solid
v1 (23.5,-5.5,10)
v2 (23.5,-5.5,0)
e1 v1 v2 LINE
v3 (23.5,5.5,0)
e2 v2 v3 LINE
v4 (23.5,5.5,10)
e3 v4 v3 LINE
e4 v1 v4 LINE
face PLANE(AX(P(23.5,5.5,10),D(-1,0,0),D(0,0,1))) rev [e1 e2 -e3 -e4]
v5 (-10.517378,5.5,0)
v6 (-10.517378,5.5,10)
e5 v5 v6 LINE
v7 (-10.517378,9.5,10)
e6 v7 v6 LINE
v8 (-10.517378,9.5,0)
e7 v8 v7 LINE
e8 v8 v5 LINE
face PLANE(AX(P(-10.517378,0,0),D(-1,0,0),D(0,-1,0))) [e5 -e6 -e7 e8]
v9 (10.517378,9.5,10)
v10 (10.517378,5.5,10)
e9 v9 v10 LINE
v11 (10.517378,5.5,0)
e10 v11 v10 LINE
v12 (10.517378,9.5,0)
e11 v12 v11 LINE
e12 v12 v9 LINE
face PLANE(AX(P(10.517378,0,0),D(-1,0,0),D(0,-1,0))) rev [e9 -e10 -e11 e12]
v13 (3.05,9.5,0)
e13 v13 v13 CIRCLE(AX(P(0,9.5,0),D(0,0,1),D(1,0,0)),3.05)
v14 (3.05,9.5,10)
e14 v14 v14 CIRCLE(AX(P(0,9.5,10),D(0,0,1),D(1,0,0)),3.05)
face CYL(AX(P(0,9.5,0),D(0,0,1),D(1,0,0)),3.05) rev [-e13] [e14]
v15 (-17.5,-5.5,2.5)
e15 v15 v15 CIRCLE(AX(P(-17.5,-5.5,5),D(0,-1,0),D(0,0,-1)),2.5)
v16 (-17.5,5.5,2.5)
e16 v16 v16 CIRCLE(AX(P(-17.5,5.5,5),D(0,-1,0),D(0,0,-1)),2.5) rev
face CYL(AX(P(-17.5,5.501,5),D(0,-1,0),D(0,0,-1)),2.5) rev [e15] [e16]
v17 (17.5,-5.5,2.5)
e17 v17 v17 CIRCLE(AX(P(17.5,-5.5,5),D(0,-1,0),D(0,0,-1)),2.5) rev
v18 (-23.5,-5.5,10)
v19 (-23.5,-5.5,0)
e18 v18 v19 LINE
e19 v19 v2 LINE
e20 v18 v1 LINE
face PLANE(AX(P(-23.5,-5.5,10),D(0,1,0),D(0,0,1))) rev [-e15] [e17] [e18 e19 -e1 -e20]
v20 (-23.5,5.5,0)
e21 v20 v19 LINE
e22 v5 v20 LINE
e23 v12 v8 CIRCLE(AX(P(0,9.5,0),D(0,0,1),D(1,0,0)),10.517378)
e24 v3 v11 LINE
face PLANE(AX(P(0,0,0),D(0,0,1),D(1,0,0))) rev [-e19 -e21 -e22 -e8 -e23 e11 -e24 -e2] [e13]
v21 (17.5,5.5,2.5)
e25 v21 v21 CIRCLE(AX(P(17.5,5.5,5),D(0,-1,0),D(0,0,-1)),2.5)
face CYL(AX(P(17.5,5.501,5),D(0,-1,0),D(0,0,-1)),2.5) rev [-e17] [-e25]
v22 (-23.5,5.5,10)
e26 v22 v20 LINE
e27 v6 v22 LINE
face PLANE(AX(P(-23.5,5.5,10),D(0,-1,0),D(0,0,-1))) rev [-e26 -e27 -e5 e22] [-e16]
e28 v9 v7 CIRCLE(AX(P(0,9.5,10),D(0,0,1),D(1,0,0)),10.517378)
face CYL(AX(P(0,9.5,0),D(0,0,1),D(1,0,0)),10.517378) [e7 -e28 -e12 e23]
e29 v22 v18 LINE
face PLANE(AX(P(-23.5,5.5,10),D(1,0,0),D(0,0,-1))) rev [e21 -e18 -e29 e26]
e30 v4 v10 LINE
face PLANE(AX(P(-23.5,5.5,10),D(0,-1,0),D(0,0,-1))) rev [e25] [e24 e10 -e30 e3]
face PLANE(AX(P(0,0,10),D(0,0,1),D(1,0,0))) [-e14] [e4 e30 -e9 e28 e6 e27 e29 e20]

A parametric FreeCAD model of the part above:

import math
import FreeCAD as App
import Part
import Sketcher
from FreeCAD import Vector
Q = App.Units.Quantity


def add_polygon(sketch, points):
    """Adds a closed chain of lines whose ends are joined by coincident constraints."""
    first, n = sketch.GeometryCount, len(points)
    for a, b in zip(points, points[1:] + points[:1]):
        sketch.addGeometry(Part.LineSegment(App.Vector(*a, 0), App.Vector(*b, 0)), False)
    for i in range(n):
        sketch.addConstraint(Sketcher.Constraint("Coincident", first + i, 2, first + (i + 1) % n, 1))

doc = App.newDocument("Part")
body = doc.addObject("PartDesign::Body", "Body")

sketch1 = doc.addObject("Sketcher::SketchObject", "Sketch")
body.addObject(sketch1)
sketch1.AttachmentSupport = (doc.XY_Plane, [""])
sketch1.MapMode = "FlatFace"
add_polygon(sketch1, [(-24, 6), (-24, -6), (24, -6), (24, 6)])
sketch1.addConstraint([
    Sketcher.Constraint("Vertical", 0),
    Sketcher.Constraint("Horizontal", 1),
    Sketcher.Constraint("Vertical", 2),
    Sketcher.Constraint("Horizontal", 3),
    Sketcher.Constraint("Symmetric", 0, 2, 2, 2, -1, 1),
    Sketcher.Constraint("DistanceX", 1, 1, 1, 2, Q("47 mm")),
    Sketcher.Constraint("DistanceY", 0, 2, 0, 1, Q("11 mm")),
])
pad1 = doc.addObject("PartDesign::Pad", "Pad")
body.addObject(pad1)
pad1.Profile = sketch1
pad1.Length = 10

sketch2 = doc.addObject("Sketcher::SketchObject", "Sketch001")
body.addObject(sketch2)
sketch2.AttachmentSupport = (doc.XZ_Plane, [""])
sketch2.MapMode = "FlatFace"
sketch2.AttachmentOffset = App.Placement(Vector(0, 0, 5.5), App.Rotation())
sketch2.addGeometry([
    Part.ArcOfCircle(Part.Circle(Vector(-17.5, 5, 0), Vector(0, 0, 1), 2.5), math.radians(180), math.radians(360)),
    Part.LineSegment(Vector(-15, 5, 0), Vector(-20, 5, 0)),
], False)
sketch2.addConstraint([
    Sketcher.Constraint("Coincident", 0, 1, 1, 2),
    Sketcher.Constraint("Coincident", 1, 1, 0, 2),
    Sketcher.Constraint("Horizontal", 1),
    Sketcher.Constraint("Radius", 0, Q("2.5 mm")),
    Sketcher.Constraint("DistanceY", -1, 1, 0, 3, Q("5 mm")),
    Sketcher.Constraint("DistanceX", 0, 1, -1, 1, Q("20 mm")),
    Sketcher.Constraint("DistanceY", -1, 1, 0, 1, Q("5 mm")),
])
pocket1 = doc.addObject("PartDesign::Pocket", "Pocket")
body.addObject(pocket1)
pocket1.Profile = sketch2
pocket1.Type = "UpToFirst"

sketch3 = doc.addObject("Sketcher::SketchObject", "Sketch002")
body.addObject(sketch3)
sketch3.AttachmentSupport = (doc.XZ_Plane, [""])
sketch3.MapMode = "FlatFace"
sketch3.AttachmentOffset = App.Placement(Vector(0, 0, 5.5), App.Rotation())
sketch3.addGeometry([
    Part.ArcOfCircle(Part.Circle(Vector(-17.5, 5, 0), Vector(0, 0, 1), 2.5), math.radians(0), math.radians(180)),
    Part.LineSegment(Vector(-20, 5, 0), Vector(-15, 5, 0)),
], False)
sketch3.addConstraint([
    Sketcher.Constraint("Coincident", 0, 1, 1, 2),
    Sketcher.Constraint("Coincident", 1, 1, 0, 2),
    Sketcher.Constraint("Horizontal", 1),
    Sketcher.Constraint("Radius", 0, Q("2.5 mm")),
    Sketcher.Constraint("DistanceY", -1, 1, 0, 3, Q("5 mm")),
    Sketcher.Constraint("DistanceX", 0, 1, -1, 1, Q("15 mm")),
    Sketcher.Constraint("DistanceY", -1, 1, 0, 1, Q("5 mm")),
])
pocket2 = doc.addObject("PartDesign::Pocket", "Pocket001")
body.addObject(pocket2)
pocket2.Profile = sketch3
pocket2.Type = "UpToFirst"

sketch4 = doc.addObject("Sketcher::SketchObject", "Sketch003")
body.addObject(sketch4)
sketch4.AttachmentSupport = (doc.XZ_Plane, [""])
sketch4.MapMode = "FlatFace"
sketch4.AttachmentOffset = App.Placement(Vector(0, 0, 5.5), App.Rotation())
sketch4.addGeometry([
    Part.ArcOfCircle(Part.Circle(Vector(-17.5, 5, 0), Vector(0, 0, 1), 2.5), math.radians(180), math.radians(360)),
    Part.LineSegment(Vector(-15, 5, 0), Vector(-20, 5, 0)),
], False)
sketch4.addConstraint([
    Sketcher.Constraint("Coincident", 0, 1, 1, 2),
    Sketcher.Constraint("Coincident", 1, 1, 0, 2),
    Sketcher.Constraint("Horizontal", 1),
    Sketcher.Constraint("Radius", 0, Q("2.5 mm")),
    Sketcher.Constraint("DistanceY", -1, 1, 0, 3, Q("5 mm")),
    Sketcher.Constraint("DistanceX", 0, 1, -1, 1, Q("20 mm")),
    Sketcher.Constraint("DistanceY", -1, 1, 0, 1, Q("5 mm")),
])
pocket3 = doc.addObject("PartDesign::Pocket", "Pocket002")
body.addObject(pocket3)
pocket3.Profile = sketch4
pocket3.Length = 11

sketch5 = doc.addObject("Sketcher::SketchObject", "Sketch004")
body.addObject(sketch5)
sketch5.AttachmentSupport = (doc.XZ_Plane, [""])
sketch5.MapMode = "FlatFace"
sketch5.AttachmentOffset = App.Placement(Vector(0, 0, 5.5), App.Rotation())
sketch5.addGeometry([
    Part.ArcOfCircle(Part.Circle(Vector(-17.5, 5, 0), Vector(0, 0, 1), 2.5), math.radians(0), math.radians(180)),
    Part.LineSegment(Vector(-20, 5, 0), Vector(-15, 5, 0)),
], False)
sketch5.addConstraint([
    Sketcher.Constraint("Coincident", 0, 1, 1, 2),
    Sketcher.Constraint("Coincident", 1, 1, 0, 2),
    Sketcher.Constraint("Horizontal", 1),
    Sketcher.Constraint("Radius", 0, Q("2.5 mm")),
    Sketcher.Constraint("DistanceY", -1, 1, 0, 3, Q("5 mm")),
    Sketcher.Constraint("DistanceX", 0, 1, -1, 1, Q("15 mm")),
    Sketcher.Constraint("DistanceY", -1, 1, 0, 1, Q("5 mm")),
])
pocket4 = doc.addObject("PartDesign::Pocket", "Pocket003")
body.addObject(pocket4)
pocket4.Profile = sketch5
pocket4.Length = 11

sketch6 = doc.addObject("Sketcher::SketchObject", "Sketch005")
body.addObject(sketch6)
sketch6.AttachmentSupport = (doc.XZ_Plane, [""])
sketch6.MapMode = "FlatFace"
sketch6.AttachmentOffset = App.Placement(Vector(0, 0, 5.5), App.Rotation())
sketch6.addGeometry(Part.Circle(Vector(17.5, 5, 0), Vector(0, 0, 1), 2.5), False)
sketch6.addConstraint([
    Sketcher.Constraint("Diameter", 0, Q("5 mm")),
    Sketcher.Constraint("DistanceY", -1, 1, 0, 3, Q("5 mm")),
    Sketcher.Constraint("DistanceX", -1, 1, 0, 3, Q("17.5 mm")),
])
pocket5 = doc.addObject("PartDesign::Pocket", "Pocket004")
body.addObject(pocket5)
pocket5.Profile = sketch6
pocket5.Type = "UpToFirst"

sketch7 = doc.addObject("Sketcher::SketchObject", "Sketch006")
body.addObject(sketch7)
sketch7.AttachmentSupport = (doc.XY_Plane, [""])
sketch7.MapMode = "FlatFace"
sketch7.AttachmentOffset = App.Placement(Vector(0, 0, 10), App.Rotation())
sketch7.addGeometry([
    Part.LineSegment(Vector(-10.5, 5.5, 0), Vector(10.5, 5.5, 0)),
    Part.LineSegment(Vector(10.5, 5.5, 0), Vector(10.5, 9.5, 0)),
    Part.ArcOfCircle(Part.Circle(Vector(0, 9.5, 0), Vector(0, 0, 1), 10.5), math.radians(0), math.radians(180)),
    Part.LineSegment(Vector(-10.5, 9.5, 0), Vector(-10.5, 5.5, 0)),
    Part.ArcOfCircle(Part.Circle(Vector(0, 9.5, 0), Vector(0, 0, 1), 3), math.radians(0), math.radians(270)),
    Part.ArcOfCircle(Part.Circle(Vector(0, 9.5, 0), Vector(0, 0, 1), 3), math.radians(-90), math.radians(0)),
], False)
sketch7.addConstraint([
    Sketcher.Constraint("Coincident", 0, 2, 1, 1),
    Sketcher.Constraint("Tangent", 1, 2, 2, 1),
    Sketcher.Constraint("Tangent", 2, 2, 3, 1),
    Sketcher.Constraint("Coincident", 3, 2, 0, 1),
    Sketcher.Constraint("Tangent", 4, 1, 5, 2),
    Sketcher.Constraint("Coincident", 5, 1, 4, 2),
    Sketcher.Constraint("Horizontal", 0),
    Sketcher.Constraint("Vertical", 1),
    Sketcher.Constraint("Vertical", 3),
    Sketcher.Constraint("Coincident", 4, 3, 2, 3),
    Sketcher.Constraint("PointOnObject", 2, 3, -2),
    Sketcher.Constraint("PointOnObject", 5, 1, -2),
    Sketcher.Constraint("Horizontal", 2, 2, 4, 1),
    Sketcher.Constraint("DistanceY", 1, 1, 1, 2, Q("4 mm")),
    Sketcher.Constraint("Radius", 4, Q("3.05 mm")),
    Sketcher.Constraint("DistanceY", -1, 1, 2, 3, Q("9.5 mm")),
    Sketcher.Constraint("Radius", 2, Q("10.517378 mm")),
])
pad2 = doc.addObject("PartDesign::Pad", "Pad001")
body.addObject(pad2)
pad2.Profile = sketch7
pad2.Length = 10
pad2.Reversed = True

doc.recompute()
